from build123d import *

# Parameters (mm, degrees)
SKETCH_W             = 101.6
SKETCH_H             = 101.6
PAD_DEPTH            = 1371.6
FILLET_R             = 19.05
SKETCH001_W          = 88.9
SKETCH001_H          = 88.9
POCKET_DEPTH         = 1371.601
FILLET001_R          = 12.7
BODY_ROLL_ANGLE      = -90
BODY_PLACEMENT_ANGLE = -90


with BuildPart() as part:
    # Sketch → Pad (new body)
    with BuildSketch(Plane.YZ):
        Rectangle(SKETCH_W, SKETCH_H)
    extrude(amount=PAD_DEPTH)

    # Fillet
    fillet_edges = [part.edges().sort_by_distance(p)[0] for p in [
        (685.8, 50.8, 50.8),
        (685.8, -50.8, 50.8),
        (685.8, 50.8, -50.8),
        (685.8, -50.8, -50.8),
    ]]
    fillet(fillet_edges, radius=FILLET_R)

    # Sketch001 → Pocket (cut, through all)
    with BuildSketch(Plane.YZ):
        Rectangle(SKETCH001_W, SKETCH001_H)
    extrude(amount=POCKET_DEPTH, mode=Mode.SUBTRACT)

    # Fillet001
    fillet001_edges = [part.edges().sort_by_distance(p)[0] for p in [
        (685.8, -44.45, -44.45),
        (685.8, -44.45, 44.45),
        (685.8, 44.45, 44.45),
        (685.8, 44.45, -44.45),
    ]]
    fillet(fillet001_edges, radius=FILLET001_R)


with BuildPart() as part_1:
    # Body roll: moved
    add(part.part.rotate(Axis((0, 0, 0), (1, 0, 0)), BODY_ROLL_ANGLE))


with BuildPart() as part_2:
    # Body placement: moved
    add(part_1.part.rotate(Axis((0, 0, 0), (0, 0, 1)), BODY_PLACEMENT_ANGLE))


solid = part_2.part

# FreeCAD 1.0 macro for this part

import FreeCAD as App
import Part
import Sketcher

V = App.Vector
Q = App.Units.Quantity


def edges_at(feature, points):
    """Names of the edges that pass closest to the given points."""
    edges = feature.Shape.Edges
    near = lambda p: min(range(len(edges)), key=lambda i: edges[i].distToShape(Part.Vertex(*p))[0])
    return sorted({f"Edge{near(p) + 1}" for p in points})

doc = App.newDocument("Part")
body = doc.addObject("PartDesign::Body", "Body")

# Sketch on YZ plane
sketch1 = body.newObject("Sketcher::SketchObject", "Sketch")
sketch1.AttachmentSupport = (doc.getObject("YZ_Plane"), [""])
sketch1.MapMode = "FlatFace"
sketch1.addGeometry([
    Part.LineSegment(V(-51, 51, 0), V(-51, -51, 0)),
    Part.LineSegment(V(-51, -51, 0), V(51, -51, 0)),
    Part.LineSegment(V(51, -51, 0), V(51, 51, 0)),
    Part.LineSegment(V(51, 51, 0), V(-51, 51, 0)),
], False)
sketch1.addConstraint([
    Sketcher.Constraint("Coincident", 0, 2, 1, 1),
    Sketcher.Constraint("Coincident", 1, 2, 2, 1),
    Sketcher.Constraint("Coincident", 2, 2, 3, 1),
    Sketcher.Constraint("Coincident", 3, 2, 0, 1),
    Sketcher.Constraint("Vertical", 0),
    Sketcher.Constraint("Horizontal", 1),
    Sketcher.Constraint("Vertical", 2),
    Sketcher.Constraint("Horizontal", 3),
    Sketcher.Constraint("Symmetric", 0, 2, 2, 2, -1, 1),
    Sketcher.Constraint("Equal", 3, 0),
    Sketcher.Constraint("DistanceX", 1, 1, 1, 2, Q("4 in")),
])
pad1 = body.newObject("PartDesign::Pad", "Pad")
pad1.Profile = sketch1
pad1.Length = Q("54 in")
doc.recompute()

fillet = body.newObject("PartDesign::Fillet", "Fillet")
fillet.Base = (pad1, edges_at(pad1, [
    (685.8, 50.8, 50.8),
    (685.8, -50.8, 50.8),
    (685.8, 50.8, -50.8),
    (685.8, -50.8, -50.8),
]))
fillet.Radius = Q("0.75 in")

# Sketch on YZ plane
sketch2 = body.newObject("Sketcher::SketchObject", "Sketch001")
sketch2.AttachmentSupport = (doc.getObject("YZ_Plane"), [""])
sketch2.MapMode = "FlatFace"
sketch2.addGeometry([
    Part.LineSegment(V(-44, 44, 0), V(-44, -44, 0)),
    Part.LineSegment(V(-44, -44, 0), V(44, -44, 0)),
    Part.LineSegment(V(44, -44, 0), V(44, 44, 0)),
    Part.LineSegment(V(44, 44, 0), V(-44, 44, 0)),
], False)
sketch2.addConstraint([
    Sketcher.Constraint("Coincident", 0, 2, 1, 1),
    Sketcher.Constraint("Coincident", 1, 2, 2, 1),
    Sketcher.Constraint("Coincident", 2, 2, 3, 1),
    Sketcher.Constraint("Coincident", 3, 2, 0, 1),
    Sketcher.Constraint("Vertical", 0),
    Sketcher.Constraint("Horizontal", 1),
    Sketcher.Constraint("Vertical", 2),
    Sketcher.Constraint("Horizontal", 3),
    Sketcher.Constraint("Symmetric", 0, 2, 2, 2, -1, 1),
    Sketcher.Constraint("Equal", 3, 0),
    Sketcher.Constraint("DistanceX", 1, 1, 1, 2, Q("3.5 in")),
])
pocket1 = body.newObject("PartDesign::Pocket", "Pocket")
pocket1.Profile = sketch2
pocket1.Type = "ThroughAll"
pocket1.Reversed = True
doc.recompute()

fillet2 = body.newObject("PartDesign::Fillet", "Fillet001")
fillet2.Base = (pocket1, edges_at(pocket1, [
    (685.8, -44.45, -44.45),
    (685.8, -44.45, 44.45),
    (685.8, 44.45, 44.45),
    (685.8, 44.45, -44.45),
]))
fillet2.Radius = Q("0.5 in")
body2 = doc.addObject("PartDesign::Body", "Body001")
doc.recompute()

body.Placement = App.Placement(V(0, 0, 0), App.Rotation(V(1, 0, 0), 270))
boolean = body2.newObject("PartDesign::Boolean", "Boolean")
boolean.Type = "Fuse"
boolean.addObjects([body])
body3 = doc.addObject("PartDesign::Body", "Body002")
doc.recompute()

body2.Placement = App.Placement(V(0, 0, 0), App.Rotation(V(0, 0, 1), 270))
boolean2 = body3.newObject("PartDesign::Boolean", "Boolean001")
boolean2.Type = "Fuse"
boolean2.addObjects([body2])

doc.recompute()
